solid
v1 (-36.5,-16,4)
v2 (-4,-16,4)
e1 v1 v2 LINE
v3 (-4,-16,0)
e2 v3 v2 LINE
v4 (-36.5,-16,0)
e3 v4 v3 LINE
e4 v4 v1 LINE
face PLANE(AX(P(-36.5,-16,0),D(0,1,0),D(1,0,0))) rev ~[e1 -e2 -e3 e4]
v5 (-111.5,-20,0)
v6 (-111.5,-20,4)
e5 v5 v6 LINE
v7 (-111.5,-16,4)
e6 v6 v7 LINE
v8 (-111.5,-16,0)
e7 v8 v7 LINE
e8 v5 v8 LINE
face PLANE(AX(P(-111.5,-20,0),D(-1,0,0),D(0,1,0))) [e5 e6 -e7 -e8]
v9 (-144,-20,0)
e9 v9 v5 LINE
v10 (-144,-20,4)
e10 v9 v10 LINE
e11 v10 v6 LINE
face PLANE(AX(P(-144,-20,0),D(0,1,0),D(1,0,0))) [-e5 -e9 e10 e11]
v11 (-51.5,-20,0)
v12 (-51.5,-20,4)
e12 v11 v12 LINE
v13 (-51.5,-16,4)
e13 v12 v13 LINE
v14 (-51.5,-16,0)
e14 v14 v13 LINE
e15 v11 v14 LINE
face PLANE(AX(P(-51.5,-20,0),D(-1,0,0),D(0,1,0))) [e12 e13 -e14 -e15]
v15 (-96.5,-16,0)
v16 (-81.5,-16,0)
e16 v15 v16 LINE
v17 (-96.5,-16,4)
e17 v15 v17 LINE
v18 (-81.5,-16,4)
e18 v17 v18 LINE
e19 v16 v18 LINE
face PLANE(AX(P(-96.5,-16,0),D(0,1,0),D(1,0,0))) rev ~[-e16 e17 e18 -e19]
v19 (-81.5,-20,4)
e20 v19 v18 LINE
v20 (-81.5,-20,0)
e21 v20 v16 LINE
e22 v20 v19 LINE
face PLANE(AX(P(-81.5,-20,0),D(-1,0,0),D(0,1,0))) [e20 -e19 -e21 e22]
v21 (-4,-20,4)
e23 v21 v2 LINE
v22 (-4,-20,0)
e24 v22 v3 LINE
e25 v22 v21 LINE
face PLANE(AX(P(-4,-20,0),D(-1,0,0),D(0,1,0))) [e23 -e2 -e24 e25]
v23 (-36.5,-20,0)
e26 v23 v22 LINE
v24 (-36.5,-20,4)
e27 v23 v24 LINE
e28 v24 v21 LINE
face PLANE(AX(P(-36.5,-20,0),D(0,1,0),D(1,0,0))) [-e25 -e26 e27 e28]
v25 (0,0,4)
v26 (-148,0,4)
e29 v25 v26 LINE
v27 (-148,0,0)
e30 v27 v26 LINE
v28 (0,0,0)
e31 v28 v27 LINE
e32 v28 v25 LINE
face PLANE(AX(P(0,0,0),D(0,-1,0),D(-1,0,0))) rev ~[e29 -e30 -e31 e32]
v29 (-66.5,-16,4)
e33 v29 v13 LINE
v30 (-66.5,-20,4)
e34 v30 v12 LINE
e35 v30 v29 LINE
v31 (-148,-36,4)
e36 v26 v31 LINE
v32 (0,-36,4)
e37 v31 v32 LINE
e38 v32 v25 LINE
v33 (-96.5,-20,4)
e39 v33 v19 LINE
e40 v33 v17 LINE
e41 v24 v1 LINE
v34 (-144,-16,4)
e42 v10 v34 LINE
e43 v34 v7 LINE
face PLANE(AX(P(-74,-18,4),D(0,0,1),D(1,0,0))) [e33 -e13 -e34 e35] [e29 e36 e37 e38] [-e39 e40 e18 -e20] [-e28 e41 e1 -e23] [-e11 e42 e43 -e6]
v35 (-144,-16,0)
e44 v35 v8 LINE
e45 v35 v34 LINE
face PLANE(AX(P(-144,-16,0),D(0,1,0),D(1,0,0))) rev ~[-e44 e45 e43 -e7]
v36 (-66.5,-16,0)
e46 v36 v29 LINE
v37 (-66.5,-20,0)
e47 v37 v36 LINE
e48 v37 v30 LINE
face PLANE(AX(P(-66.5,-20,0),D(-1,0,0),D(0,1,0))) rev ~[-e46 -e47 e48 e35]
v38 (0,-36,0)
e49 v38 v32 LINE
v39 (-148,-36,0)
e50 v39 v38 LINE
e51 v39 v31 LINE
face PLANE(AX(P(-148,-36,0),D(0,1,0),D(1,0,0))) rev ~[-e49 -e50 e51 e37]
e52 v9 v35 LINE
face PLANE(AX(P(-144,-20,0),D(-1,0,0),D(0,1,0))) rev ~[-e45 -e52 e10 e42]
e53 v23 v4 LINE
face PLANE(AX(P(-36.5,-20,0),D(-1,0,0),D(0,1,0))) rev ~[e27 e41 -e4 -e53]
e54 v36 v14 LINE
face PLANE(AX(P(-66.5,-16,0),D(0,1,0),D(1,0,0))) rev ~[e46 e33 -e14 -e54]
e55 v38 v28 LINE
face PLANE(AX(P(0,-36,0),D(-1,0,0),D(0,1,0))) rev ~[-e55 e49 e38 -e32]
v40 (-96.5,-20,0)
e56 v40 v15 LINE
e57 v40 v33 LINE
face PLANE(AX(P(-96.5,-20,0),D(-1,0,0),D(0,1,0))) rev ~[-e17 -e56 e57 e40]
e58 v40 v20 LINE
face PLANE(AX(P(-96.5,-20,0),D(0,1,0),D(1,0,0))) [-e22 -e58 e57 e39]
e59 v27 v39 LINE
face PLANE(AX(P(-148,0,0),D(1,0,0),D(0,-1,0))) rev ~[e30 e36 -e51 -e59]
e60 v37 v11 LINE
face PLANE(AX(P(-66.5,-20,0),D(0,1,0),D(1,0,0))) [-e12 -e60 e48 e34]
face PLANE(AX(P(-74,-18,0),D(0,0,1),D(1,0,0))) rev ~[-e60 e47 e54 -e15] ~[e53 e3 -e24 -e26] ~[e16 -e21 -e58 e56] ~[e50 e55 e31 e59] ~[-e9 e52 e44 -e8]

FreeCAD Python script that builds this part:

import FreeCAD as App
import Part
import Sketcher

V = App.Vector


def add_polygon(sketch, points):
    """Adds a closed chain of lines whose ends are joined by coincident constraints."""
    first, n = sketch.GeometryCount, len(points)
    for a, b in zip(points, points[1:] + points[:1]):
        sketch.addGeometry(Part.LineSegment(App.Vector(*a, 0), App.Vector(*b, 0)), False)
    for i in range(n):
        sketch.addConstraint(Sketcher.Constraint("Coincident", first + i, 2, first + (i + 1) % n, 1))

doc = App.newDocument("Part")
params = doc.addObject("Spreadsheet::Sheet", "Params")
for row, (alias, value) in enumerate([
    ("sketch1_width", "148 mm"),
    ("sketch1_width2", "15 mm"),
    ("sketch1_height", "36 mm"),
    ("sketch1_height2", "4 mm"),
    ("sketch1_width3", "32.5 mm"),
    ("pad1_length", "4 mm"),
], start=1):
    params.set(f"A{row}", alias)
    params.set(f"B{row}", "=" + value)
    params.setAlias(f"B{row}", alias)

body = doc.addObject("PartDesign::Body", "Body")

sketch1 = doc.addObject("Sketcher::SketchObject", "Sketch")
body.addObject(sketch1)
sketch1.AttachmentSupport = (doc.XY_Plane, [""])
sketch1.MapMode = "FlatFace"
add_polygon(sketch1, [(0, 0), (-148, 0), (-148, -36), (0, -36)])
add_polygon(sketch1, [(-111.5, -20), (-144, -20), (-144, -16), (-111.5, -16)])
add_polygon(sketch1, [(-81.5, -20), (-96.5, -20), (-96.5, -16), (-81.5, -16)])
add_polygon(sketch1, [(-51.5, -20), (-66.5, -20), (-66.5, -16), (-51.5, -16)])
add_polygon(sketch1, [(-4, -20), (-36.5, -20), (-36.5, -16), (-4, -16)])
sketch1.addConstraint(Sketcher.Constraint("Horizontal", 0))
sketch1.addConstraint(Sketcher.Constraint("Vertical", 1))
sketch1.addConstraint(Sketcher.Constraint("Horizontal", 2))
sketch1.addConstraint(Sketcher.Constraint("Vertical", 3))
sketch1.addConstraint(Sketcher.Constraint("Horizontal", 4))
sketch1.addConstraint(Sketcher.Constraint("Vertical", 5))
sketch1.addConstraint(Sketcher.Constraint("Horizontal", 6))
sketch1.addConstraint(Sketcher.Constraint("Vertical", 7))
sketch1.addConstraint(Sketcher.Constraint("Horizontal", 8))
sketch1.addConstraint(Sketcher.Constraint("Vertical", 9))
sketch1.addConstraint(Sketcher.Constraint("Horizontal", 10))
sketch1.addConstraint(Sketcher.Constraint("Vertical", 11))
sketch1.addConstraint(Sketcher.Constraint("Horizontal", 12))
sketch1.addConstraint(Sketcher.Constraint("Vertical", 13))
sketch1.addConstraint(Sketcher.Constraint("Horizontal", 14))
sketch1.addConstraint(Sketcher.Constraint("Vertical", 15))
sketch1.addConstraint(Sketcher.Constraint("Horizontal", 16))
sketch1.addConstraint(Sketcher.Constraint("Vertical", 17))
sketch1.addConstraint(Sketcher.Constraint("Horizontal", 18))
sketch1.addConstraint(Sketcher.Constraint("Vertical", 19))
sketch1.addConstraint(Sketcher.Constraint("Coincident", 3, 2, -1, 1))
sketch1.addConstraint(Sketcher.Constraint("Horizontal", 7, 2, 8, 2))
sketch1.addConstraint(Sketcher.Constraint("Horizontal", 6, 2, 9, 2))
sketch1.addConstraint(Sketcher.Constraint("Horizontal", 11, 2, 12, 2))
sketch1.addConstraint(Sketcher.Constraint("Horizontal", 10, 2, 13, 2))
sketch1.addConstraint(Sketcher.Constraint("Horizontal", 15, 2, 16, 2))
sketch1.addConstraint(Sketcher.Constraint("Horizontal", 14, 2, 17, 2))
sketch1.addConstraint(Sketcher.Constraint("Equal", 10, 12))
sketch1.addConstraint(Sketcher.Constraint("Equal", 6, 16))
sketch1.addConstraint(Sketcher.Constraint("DistanceX", 0, 2, 0, 1, 148.0))
sketch1.addConstraint(Sketcher.Constraint("DistanceX", 8, 2, 8, 1, 15.0))
sketch1.addConstraint(Sketcher.Constraint("DistanceY", 1, 2, 1, 1, 36.0))
sketch1.addConstraint(Sketcher.Constraint("DistanceY", 5, 1, 5, 2, 4.0))
sketch1.addConstraint(Sketcher.Constraint("DistanceX", 4, 2, 4, 1, 32.5))
sketch1.addConstraint(Sketcher.Constraint("DistanceX", 4, 2, -1, 1, 144.0))
sketch1.addConstraint(Sketcher.Constraint("DistanceY", 4, 2, -1, 1, 20.0))
sketch1.addConstraint(Sketcher.Constraint("DistanceX", 18, 2, -1, 1, 4.0))
sketch1.addConstraint(Sketcher.Constraint("DistanceX", 7, 2, 8, 2, 15.0))
sketch1.addConstraint(Sketcher.Constraint("DistanceX", 11, 2, 12, 2, 15.0))
sketch1.setExpression("Constraints[49]", "Params.sketch1_width")
sketch1.setExpression("Constraints[50]", "Params.sketch1_width2")
sketch1.setExpression("Constraints[51]", "Params.sketch1_height")
sketch1.setExpression("Constraints[52]", "Params.sketch1_height2")
sketch1.setExpression("Constraints[53]", "Params.sketch1_width3")
pad1 = doc.addObject("PartDesign::Pad", "Pad")
body.addObject(pad1)
pad1.Profile = sketch1
pad1.setExpression("Length", "Params.pad1_length")

doc.recompute()
